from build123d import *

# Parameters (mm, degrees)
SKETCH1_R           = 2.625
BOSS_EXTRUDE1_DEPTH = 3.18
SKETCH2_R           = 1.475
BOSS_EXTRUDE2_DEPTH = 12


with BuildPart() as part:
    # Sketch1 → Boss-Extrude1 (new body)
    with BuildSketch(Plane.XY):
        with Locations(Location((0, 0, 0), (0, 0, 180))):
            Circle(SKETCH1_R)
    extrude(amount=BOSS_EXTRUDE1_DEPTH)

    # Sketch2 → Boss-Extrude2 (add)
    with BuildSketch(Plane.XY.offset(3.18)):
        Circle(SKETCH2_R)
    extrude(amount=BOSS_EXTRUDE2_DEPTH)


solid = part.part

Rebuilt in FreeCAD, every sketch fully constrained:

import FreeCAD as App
import Part
import Sketcher

doc = App.newDocument("Part")
body = doc.addObject("PartDesign::Body", "Body")

# Sketch on XY plane
sketch1 = body.newObject("Sketcher::SketchObject", "Sketch")
sketch1.AttachmentSupport = (doc.getObject("XY_Plane"), [""])
sketch1.MapMode = "FlatFace"
sketch1.addGeometry(Part.Circle(App.Vector(0, 0, 0), App.Vector(0, 0, 1), 2.6), False)
sketch1.addConstraint(Sketcher.Constraint("Coincident", 0, 3, -1, 1))
sketch1.addConstraint(Sketcher.Constraint("Diameter", 0, 5.25))
pad1 = body.newObject("PartDesign::Pad", "Pad")
pad1.Profile = sketch1
pad1.Length = 3.18

# Sketch on XY plane
sketch2 = body.newObject("Sketcher::SketchObject", "Sketch001")
sketch2.AttachmentSupport = (doc.getObject("XY_Plane"), [""])
sketch2.MapMode = "FlatFace"
sketch2.AttachmentOffset = App.Placement(App.Vector(0, 0, 3.18), App.Rotation())
sketch2.addGeometry(Part.Circle(App.Vector(0, 0, 0), App.Vector(0, 0, 1), 1.5), False)
sketch2.addConstraint(Sketcher.Constraint("Coincident", 0, 3, -1, 1))
sketch2.addConstraint(Sketcher.Constraint("Diameter", 0, 2.95))
pad2 = body.newObject("PartDesign::Pad", "Pad001")
pad2.Profile = sketch2
pad2.Length = 12

doc.recompute()
